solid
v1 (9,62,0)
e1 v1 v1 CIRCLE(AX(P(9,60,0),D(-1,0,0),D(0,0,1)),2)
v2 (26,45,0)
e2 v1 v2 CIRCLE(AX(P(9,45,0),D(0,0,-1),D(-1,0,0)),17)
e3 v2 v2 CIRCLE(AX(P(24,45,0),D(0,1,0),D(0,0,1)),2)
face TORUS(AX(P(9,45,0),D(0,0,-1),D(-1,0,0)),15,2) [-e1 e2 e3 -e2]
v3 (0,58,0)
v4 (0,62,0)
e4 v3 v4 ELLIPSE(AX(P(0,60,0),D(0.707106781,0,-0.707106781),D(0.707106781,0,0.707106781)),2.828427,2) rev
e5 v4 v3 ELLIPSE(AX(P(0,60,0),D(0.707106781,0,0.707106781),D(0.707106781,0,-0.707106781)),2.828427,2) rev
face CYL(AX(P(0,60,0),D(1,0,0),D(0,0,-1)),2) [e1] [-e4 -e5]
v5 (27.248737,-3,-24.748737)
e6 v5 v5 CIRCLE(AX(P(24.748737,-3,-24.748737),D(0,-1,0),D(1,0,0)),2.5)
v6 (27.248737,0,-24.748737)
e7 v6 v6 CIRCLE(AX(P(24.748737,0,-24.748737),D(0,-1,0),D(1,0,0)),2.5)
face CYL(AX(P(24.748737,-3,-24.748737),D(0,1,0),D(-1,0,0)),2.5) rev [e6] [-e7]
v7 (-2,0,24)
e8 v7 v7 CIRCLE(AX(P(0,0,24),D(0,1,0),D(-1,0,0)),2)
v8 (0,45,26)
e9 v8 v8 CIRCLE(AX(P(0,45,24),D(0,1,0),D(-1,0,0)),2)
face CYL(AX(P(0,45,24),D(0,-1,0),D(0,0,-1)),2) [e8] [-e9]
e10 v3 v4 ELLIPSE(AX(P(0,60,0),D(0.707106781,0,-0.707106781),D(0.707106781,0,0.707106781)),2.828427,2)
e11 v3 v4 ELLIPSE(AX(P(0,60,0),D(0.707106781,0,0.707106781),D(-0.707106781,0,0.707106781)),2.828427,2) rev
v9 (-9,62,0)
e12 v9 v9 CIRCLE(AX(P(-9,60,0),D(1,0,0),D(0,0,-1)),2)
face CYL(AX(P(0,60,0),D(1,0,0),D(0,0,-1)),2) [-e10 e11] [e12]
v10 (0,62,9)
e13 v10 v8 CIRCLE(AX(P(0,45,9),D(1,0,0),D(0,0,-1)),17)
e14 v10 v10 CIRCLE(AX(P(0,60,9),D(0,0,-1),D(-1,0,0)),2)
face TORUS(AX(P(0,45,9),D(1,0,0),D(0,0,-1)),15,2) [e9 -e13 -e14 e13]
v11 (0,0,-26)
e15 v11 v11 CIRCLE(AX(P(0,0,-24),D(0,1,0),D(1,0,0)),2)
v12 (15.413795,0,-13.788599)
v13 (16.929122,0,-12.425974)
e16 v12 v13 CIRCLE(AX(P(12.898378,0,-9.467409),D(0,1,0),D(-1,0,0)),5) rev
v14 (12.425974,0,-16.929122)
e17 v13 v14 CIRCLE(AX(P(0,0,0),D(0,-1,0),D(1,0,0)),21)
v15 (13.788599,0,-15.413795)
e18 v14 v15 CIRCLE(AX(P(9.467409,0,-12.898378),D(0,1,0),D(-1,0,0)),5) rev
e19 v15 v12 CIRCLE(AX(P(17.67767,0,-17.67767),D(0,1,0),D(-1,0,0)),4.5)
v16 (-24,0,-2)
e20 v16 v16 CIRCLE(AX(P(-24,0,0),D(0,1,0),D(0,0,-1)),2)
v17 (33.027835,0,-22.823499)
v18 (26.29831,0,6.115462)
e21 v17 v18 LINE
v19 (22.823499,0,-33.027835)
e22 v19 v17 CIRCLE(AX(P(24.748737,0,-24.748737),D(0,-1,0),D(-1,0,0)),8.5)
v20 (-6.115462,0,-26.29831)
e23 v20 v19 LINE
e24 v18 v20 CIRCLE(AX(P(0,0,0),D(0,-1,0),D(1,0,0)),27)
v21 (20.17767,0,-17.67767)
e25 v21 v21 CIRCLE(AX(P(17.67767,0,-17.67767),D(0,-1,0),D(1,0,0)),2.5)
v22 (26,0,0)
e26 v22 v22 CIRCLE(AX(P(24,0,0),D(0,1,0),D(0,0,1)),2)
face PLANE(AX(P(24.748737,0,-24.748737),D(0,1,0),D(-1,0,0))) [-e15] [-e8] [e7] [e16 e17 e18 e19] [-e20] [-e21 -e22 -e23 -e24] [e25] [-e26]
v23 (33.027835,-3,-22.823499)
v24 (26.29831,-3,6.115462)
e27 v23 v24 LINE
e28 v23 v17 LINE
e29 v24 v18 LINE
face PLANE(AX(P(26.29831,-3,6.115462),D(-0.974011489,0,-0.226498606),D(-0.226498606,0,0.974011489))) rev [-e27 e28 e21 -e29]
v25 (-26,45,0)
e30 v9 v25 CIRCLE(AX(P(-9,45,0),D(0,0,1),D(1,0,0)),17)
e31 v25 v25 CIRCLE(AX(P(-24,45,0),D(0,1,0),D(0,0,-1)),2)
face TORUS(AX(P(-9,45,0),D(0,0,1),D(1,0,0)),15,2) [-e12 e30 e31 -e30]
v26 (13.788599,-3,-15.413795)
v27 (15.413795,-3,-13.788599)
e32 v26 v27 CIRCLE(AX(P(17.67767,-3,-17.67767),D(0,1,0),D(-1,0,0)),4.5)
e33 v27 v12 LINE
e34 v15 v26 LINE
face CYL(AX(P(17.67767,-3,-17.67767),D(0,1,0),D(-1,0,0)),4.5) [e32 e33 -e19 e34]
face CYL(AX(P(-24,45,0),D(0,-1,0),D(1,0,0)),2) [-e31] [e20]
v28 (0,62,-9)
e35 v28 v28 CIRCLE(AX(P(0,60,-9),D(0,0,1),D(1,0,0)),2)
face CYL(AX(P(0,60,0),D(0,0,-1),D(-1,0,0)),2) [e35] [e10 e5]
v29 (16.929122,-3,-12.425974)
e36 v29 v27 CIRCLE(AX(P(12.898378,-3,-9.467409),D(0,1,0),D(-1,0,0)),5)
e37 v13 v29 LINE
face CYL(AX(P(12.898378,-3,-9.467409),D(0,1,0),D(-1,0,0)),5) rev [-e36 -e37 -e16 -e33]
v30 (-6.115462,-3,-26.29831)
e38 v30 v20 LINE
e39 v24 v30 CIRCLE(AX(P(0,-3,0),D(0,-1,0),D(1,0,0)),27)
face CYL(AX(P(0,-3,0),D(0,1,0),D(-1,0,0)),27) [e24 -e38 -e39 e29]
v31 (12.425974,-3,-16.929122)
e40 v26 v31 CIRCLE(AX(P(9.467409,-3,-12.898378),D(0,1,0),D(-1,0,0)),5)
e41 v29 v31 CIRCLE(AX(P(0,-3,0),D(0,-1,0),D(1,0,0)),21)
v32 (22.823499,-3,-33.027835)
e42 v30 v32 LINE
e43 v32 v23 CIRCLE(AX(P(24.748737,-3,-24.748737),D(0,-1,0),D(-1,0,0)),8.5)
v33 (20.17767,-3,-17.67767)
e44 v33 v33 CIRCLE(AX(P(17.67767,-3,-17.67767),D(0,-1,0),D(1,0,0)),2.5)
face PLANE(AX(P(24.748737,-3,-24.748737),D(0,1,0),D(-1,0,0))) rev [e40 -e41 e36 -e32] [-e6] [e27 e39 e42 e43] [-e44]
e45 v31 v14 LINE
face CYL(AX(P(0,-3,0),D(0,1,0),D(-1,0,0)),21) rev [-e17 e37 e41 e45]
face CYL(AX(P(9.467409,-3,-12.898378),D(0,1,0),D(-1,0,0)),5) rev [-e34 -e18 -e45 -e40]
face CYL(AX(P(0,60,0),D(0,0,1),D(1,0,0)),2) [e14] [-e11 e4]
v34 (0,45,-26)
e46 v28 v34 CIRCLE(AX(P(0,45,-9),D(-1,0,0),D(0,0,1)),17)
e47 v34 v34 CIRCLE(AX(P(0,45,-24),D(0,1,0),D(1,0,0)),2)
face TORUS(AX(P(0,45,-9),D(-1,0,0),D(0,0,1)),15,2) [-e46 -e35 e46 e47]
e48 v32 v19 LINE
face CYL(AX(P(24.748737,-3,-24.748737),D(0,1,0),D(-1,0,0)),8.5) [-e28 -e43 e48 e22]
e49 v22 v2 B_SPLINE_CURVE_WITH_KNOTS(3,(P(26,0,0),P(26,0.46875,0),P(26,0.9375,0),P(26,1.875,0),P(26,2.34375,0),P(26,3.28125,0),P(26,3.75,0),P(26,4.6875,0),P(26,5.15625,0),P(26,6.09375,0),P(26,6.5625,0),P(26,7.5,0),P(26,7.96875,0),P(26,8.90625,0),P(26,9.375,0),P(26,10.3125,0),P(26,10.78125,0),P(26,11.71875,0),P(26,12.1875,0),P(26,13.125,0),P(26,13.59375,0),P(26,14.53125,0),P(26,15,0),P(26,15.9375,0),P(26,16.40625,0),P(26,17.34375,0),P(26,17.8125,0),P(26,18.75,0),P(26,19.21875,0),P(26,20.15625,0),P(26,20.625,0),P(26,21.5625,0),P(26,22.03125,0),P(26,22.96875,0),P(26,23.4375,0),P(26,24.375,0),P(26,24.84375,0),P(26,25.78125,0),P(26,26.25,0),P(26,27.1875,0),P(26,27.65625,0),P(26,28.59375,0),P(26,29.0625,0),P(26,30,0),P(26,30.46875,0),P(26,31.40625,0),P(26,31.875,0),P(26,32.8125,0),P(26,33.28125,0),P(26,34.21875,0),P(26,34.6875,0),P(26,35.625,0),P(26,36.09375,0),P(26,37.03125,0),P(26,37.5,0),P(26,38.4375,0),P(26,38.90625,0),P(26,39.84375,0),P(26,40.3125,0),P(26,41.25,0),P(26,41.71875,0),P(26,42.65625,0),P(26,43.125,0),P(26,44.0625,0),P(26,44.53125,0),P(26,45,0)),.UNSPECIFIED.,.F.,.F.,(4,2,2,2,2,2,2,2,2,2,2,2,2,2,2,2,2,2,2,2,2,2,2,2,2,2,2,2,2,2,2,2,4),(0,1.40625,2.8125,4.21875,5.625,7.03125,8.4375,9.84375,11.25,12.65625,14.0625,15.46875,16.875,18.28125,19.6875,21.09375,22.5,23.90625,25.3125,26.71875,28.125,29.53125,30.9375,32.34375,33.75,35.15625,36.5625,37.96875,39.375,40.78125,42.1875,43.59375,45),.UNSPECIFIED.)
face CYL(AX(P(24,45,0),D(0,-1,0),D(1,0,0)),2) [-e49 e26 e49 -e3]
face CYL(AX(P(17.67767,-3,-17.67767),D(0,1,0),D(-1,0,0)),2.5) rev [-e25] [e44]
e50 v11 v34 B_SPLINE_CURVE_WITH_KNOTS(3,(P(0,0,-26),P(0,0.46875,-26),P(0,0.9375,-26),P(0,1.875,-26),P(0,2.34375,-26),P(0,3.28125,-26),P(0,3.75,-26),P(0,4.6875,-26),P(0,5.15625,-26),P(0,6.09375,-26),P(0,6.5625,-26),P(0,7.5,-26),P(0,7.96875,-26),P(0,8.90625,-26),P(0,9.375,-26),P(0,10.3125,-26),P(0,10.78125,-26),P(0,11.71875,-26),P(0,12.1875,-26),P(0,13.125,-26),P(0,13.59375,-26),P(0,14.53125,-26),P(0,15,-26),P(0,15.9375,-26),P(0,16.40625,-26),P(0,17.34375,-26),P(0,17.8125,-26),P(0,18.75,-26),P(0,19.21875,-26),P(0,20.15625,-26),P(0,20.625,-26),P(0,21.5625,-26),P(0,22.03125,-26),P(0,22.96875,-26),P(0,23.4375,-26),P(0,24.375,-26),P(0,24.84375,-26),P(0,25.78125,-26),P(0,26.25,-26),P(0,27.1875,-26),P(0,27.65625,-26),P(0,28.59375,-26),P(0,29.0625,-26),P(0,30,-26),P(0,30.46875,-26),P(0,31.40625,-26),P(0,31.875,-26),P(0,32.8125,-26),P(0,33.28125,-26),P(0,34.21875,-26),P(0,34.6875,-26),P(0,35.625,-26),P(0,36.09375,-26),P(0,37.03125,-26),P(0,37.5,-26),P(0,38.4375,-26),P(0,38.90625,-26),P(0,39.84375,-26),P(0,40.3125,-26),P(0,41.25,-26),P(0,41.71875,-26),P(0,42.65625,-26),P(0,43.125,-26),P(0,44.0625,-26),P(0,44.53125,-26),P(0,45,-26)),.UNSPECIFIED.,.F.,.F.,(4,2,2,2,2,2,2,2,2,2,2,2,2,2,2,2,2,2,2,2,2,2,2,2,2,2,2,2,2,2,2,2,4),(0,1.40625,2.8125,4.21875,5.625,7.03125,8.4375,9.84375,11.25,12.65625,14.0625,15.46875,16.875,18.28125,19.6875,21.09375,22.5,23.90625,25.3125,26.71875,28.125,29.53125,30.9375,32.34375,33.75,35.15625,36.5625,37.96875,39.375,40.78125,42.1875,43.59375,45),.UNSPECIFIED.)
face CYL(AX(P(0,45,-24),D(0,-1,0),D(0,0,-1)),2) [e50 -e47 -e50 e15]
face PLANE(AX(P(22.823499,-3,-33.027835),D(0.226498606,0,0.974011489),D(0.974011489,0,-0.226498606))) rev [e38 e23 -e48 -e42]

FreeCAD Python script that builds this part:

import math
import FreeCAD as App
import Part
import Sketcher
Q = App.Units.Quantity


def edges_at(feature, points):
    """Names of the edges that pass closest to the given points."""
    edges = feature.Shape.Edges
    near = lambda p: min(range(len(edges)), key=lambda i: edges[i].distToShape(Part.Vertex(*p))[0])
    return sorted({f"Edge{near(p) + 1}" for p in points})

doc = App.newDocument("Part")
body = doc.addObject("PartDesign::Body", "Body")

sketch1 = doc.addObject("Sketcher::SketchObject", "Sketch")
body.addObject(sketch1)
sketch1.AttachmentSupport = (doc.XZ_Plane, [""])
sketch1.MapMode = "FlatFace"
sketch1.addGeometry(Part.Circle(App.Vector(24, 0, 0), App.Vector(0, 0, 1), 2), False)
sketch1.addConstraint([
    Sketcher.Constraint("PointOnObject", 0, 3, -1),
    Sketcher.Constraint("Diameter", 0, Q("4 mm")),
    Sketcher.Constraint("DistanceX", -1, 1, 0, 3, Q("24 mm")),
])

sketch2 = doc.addObject("Sketcher::SketchObject", "Sketch001")
body.addObject(sketch2)
sketch2.AttachmentSupport = (doc.XY_Plane, [""])
sketch2.MapMode = "FlatFace"
sketch2.addGeometry([
    Part.LineSegment(App.Vector(0, 60, 0), App.Vector(9, 60, 0)),
    Part.ArcOfCircle(Part.Circle(App.Vector(9, 45, 0), App.Vector(0, 0, 1), 15), math.radians(0), math.radians(90)),
    Part.LineSegment(App.Vector(24, 45, 0), App.Vector(24, 0, 0)),
], False)
sketch2.addConstraint([
    Sketcher.Constraint("Tangent", 0, 2, 1, 2),
    Sketcher.Constraint("Tangent", 1, 1, 2, 1),
    Sketcher.Constraint("Horizontal", 0),
    Sketcher.Constraint("Vertical", 2),
    Sketcher.Constraint("PointOnObject", 0, 1, -2),
    Sketcher.Constraint("PointOnObject", 2, 2, -1),
    Sketcher.Constraint("Radius", 1, Q("15 mm")),
    Sketcher.Constraint("DistanceX", 0, 1, 0, 2, Q("9 mm")),
    Sketcher.Constraint("DistanceY", 2, 2, 2, 1, Q("45 mm")),
])
doc.recompute()

additivepipe = doc.addObject("PartDesign::AdditivePipe", "AdditivePipe")
body.addObject(additivepipe)
additivepipe.Profile = sketch1
additivepipe.Spine = (sketch2, ["Edge1", "Edge2", "Edge3"])
doc.recompute()

polarpattern = doc.addObject("PartDesign::PolarPattern", "PolarPattern")
body.addObject(polarpattern)
polarpattern.Originals = [additivepipe]
polarpattern.Axis = (doc.Y_Axis, [""])
polarpattern.Angle = 360
polarpattern.Occurrences = 4
body.Tip = polarpattern

sketch3 = doc.addObject("Sketcher::SketchObject", "Sketch002")
body.addObject(sketch3)
sketch3.AttachmentSupport = (doc.XZ_Plane, [""])
sketch3.MapMode = "FlatFace"
sketch3.addGeometry([
    Part.LineSegment(App.Vector(33, -22.8, 0), App.Vector(26.3, 6.1, 0)),
    Part.ArcOfCircle(Part.Circle(App.Vector(0, 0, 0), App.Vector(0, 0, 1), 27), math.radians(13), math.radians(257)),
    Part.LineSegment(App.Vector(-6.1, -26.3, 0), App.Vector(22.8, -33, 0)),
    Part.ArcOfCircle(Part.Circle(App.Vector(24.7, -24.7, 0), App.Vector(0, 0, 1), 8.5), math.radians(-103), math.radians(13)),
    Part.Circle(App.Vector(24.7, -24.7, 0), App.Vector(0, 0, 1), 2.5),
    Part.Circle(App.Vector(17.7, -17.7, 0), App.Vector(0, 0, 1), 2.5),
    Part.ArcOfCircle(Part.Circle(App.Vector(0, 0, 0), App.Vector(0, 0, 1), 21), math.radians(-40), math.radians(310)),
    Part.ArcOfCircle(Part.Circle(App.Vector(17.7, -17.7, 0), App.Vector(0, 0, 1), 4.5), math.radians(110), math.radians(160)),
], False)
sketch3.addConstraint([
    Sketcher.Constraint("Tangent", 0, 2, 1, 1),
    Sketcher.Constraint("Tangent", 1, 2, 2, 1),
    Sketcher.Constraint("Tangent", 2, 2, 3, 1),
    Sketcher.Constraint("Tangent", 3, 2, 0, 1),
    Sketcher.Constraint("Coincident", 6, 1, 7, 1),
    Sketcher.Constraint("Coincident", 7, 2, 6, 2),
    Sketcher.Constraint("Coincident", 1, 3, -1, 1),
    Sketcher.Constraint("Coincident", 6, 3, -1, 1),
    Sketcher.Constraint("Coincident", 4, 3, 3, 3),
    Sketcher.Constraint("Coincident", 7, 3, 5, 3),
    Sketcher.Constraint("Equal", 4, 5),
    Sketcher.Constraint("Diameter", 4, Q("5 mm")),
    Sketcher.Constraint("Radius", 1, Q("27 mm")),
    Sketcher.Constraint("Radius", 6, Q("21 mm")),
    Sketcher.Constraint("Radius", 3, Q("8.5 mm")),
    Sketcher.Constraint("Radius", 7, Q("4.5 mm")),
    Sketcher.Constraint("DistanceX", -1, 1, 2, 2, Q("22.823499 mm")),
    Sketcher.Constraint("DistanceY", 3, 2, -1, 1, Q("22.823499 mm")),
    Sketcher.Constraint("DistanceX", -1, 1, 5, 3, Q("17.67767 mm")),
    Sketcher.Constraint("DistanceY", 5, 3, -1, 1, Q("17.67767 mm")),
])
pad1 = doc.addObject("PartDesign::Pad", "Pad")
body.addObject(pad1)
pad1.Profile = sketch3
pad1.Length = 3
doc.recompute()

fillet = doc.addObject("PartDesign::Fillet", "Fillet")
body.addObject(fillet)
fillet.Base = (pad1, edges_at(pad1, [(13.454, -1.5, -16.124), (16.124, -1.5, -13.454)]))
fillet.Radius = 5

doc.recompute()
